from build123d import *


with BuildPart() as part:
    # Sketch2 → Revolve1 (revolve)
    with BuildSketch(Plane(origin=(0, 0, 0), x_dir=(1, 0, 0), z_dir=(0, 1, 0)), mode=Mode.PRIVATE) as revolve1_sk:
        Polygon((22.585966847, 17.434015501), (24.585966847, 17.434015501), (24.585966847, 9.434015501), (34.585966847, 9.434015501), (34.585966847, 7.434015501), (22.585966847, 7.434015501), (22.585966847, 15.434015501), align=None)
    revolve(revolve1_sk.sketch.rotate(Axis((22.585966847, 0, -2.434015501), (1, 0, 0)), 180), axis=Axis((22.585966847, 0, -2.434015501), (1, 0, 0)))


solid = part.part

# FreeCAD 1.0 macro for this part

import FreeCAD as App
import Part
import Sketcher

V = App.Vector
Q = App.Units.Quantity

doc = App.newDocument("Part")
body = doc.addObject("PartDesign::Body", "Body")

sketch1 = body.newObject("Sketcher::SketchObject", "Sketch")
sketch1.AttachmentSupport = (doc.getObject("XZ_Plane"), [""])
sketch1.MapMode = "FlatFace"
sketch1.addGeometry(Part.LineSegment(V(24.6, -17.4, 0), V(22.6, -17.4, 0)), False)
sketch1.addGeometry(Part.LineSegment(V(22.6, -17.4, 0), V(22.6, -7.4, 0)), False)
sketch1.addGeometry(Part.LineSegment(V(22.6, -7.4, 0), V(34.6, -7.4, 0)), False)
sketch1.addGeometry(Part.LineSegment(V(34.6, -7.4, 0), V(34.6, -9.4, 0)), False)
sketch1.addGeometry(Part.LineSegment(V(34.6, -9.4, 0), V(24.6, -9.4, 0)), False)
sketch1.addGeometry(Part.LineSegment(V(24.6, -9.4, 0), V(24.6, -17.4, 0)), False)
sketch1.addGeometry(Part.LineSegment(V(22.6, -2.4, 0), V(34.6, -2.4, 0)), True)
sketch1.addConstraint(Sketcher.Constraint("Coincident", 0, 2, 1, 1))
sketch1.addConstraint(Sketcher.Constraint("Coincident", 1, 2, 2, 1))
sketch1.addConstraint(Sketcher.Constraint("Coincident", 2, 2, 3, 1))
sketch1.addConstraint(Sketcher.Constraint("Coincident", 3, 2, 4, 1))
sketch1.addConstraint(Sketcher.Constraint("Coincident", 4, 2, 5, 1))
sketch1.addConstraint(Sketcher.Constraint("Coincident", 5, 2, 0, 1))
sketch1.addConstraint(Sketcher.Constraint("Horizontal", 0))
sketch1.addConstraint(Sketcher.Constraint("Vertical", 1))
sketch1.addConstraint(Sketcher.Constraint("Horizontal", 2))
sketch1.addConstraint(Sketcher.Constraint("Vertical", 3))
sketch1.addConstraint(Sketcher.Constraint("Horizontal", 4))
sketch1.addConstraint(Sketcher.Constraint("Vertical", 5))
sketch1.addConstraint(Sketcher.Constraint("Horizontal", 6))
sketch1.addConstraint(Sketcher.Constraint("Vertical", 1, 2, 6, 1))
sketch1.addConstraint(Sketcher.Constraint("Vertical", 3, 2, 6, 2))
sketch1.addConstraint(Sketcher.Constraint("Equal", 4, 1))
sketch1.addConstraint(Sketcher.Constraint("Equal", 0, 3))
sketch1.addConstraint(Sketcher.Constraint("DistanceX", 0, 2, 0, 1, Q("2 mm")))
sketch1.addConstraint(Sketcher.Constraint("DistanceX", 2, 1, 2, 2, Q("12 mm")))
sketch1.addConstraint(Sketcher.Constraint("DistanceY", 1, 2, 6, 1, Q("5 mm")))
sketch1.addConstraint(Sketcher.Constraint("DistanceX", -1, 1, 0, 2, Q("22.585967 mm")))
sketch1.addConstraint(Sketcher.Constraint("DistanceY", 0, 2, -1, 1, Q("17.434016 mm")))
revolution = body.newObject("PartDesign::Revolution", "Revolution")
revolution.Profile = sketch1
revolution.ReferenceAxis = (sketch1, ["Axis0"])
revolution.Angle = 360

doc.recompute()
